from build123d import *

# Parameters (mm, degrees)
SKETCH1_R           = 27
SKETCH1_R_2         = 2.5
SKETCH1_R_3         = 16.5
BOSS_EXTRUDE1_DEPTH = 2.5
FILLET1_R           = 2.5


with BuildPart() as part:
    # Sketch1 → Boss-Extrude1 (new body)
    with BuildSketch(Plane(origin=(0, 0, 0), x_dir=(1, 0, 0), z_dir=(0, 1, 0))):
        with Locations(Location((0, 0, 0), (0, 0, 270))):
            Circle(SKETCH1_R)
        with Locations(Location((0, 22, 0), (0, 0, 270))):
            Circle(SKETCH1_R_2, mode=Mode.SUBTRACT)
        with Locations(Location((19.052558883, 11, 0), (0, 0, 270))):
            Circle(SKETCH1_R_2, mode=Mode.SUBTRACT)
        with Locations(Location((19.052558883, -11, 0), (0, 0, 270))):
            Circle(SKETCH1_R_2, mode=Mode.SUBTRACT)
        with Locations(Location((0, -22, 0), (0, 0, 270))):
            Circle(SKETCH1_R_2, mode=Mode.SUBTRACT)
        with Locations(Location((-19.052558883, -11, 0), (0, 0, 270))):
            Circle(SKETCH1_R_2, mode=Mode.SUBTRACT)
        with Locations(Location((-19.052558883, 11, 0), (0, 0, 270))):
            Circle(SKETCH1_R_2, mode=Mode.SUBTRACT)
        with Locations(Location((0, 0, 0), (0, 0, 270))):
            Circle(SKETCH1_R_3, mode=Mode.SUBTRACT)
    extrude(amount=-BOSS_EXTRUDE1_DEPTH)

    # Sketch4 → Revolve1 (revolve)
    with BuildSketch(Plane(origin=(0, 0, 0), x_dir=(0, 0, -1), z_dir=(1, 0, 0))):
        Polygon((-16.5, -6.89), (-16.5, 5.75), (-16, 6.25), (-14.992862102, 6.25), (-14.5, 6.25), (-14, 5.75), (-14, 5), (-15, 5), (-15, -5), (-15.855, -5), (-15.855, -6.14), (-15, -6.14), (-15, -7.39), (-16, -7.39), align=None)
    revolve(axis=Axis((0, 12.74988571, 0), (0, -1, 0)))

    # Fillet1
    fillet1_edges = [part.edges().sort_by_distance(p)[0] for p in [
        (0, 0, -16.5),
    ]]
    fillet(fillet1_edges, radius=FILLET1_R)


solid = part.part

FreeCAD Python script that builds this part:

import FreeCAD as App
import Part
import Sketcher
from FreeCAD import Vector


def edges_at(feature, points):
    """Names of the edges that pass closest to the given points."""
    edges = feature.Shape.Edges
    near = lambda p: min(range(len(edges)), key=lambda i: edges[i].distToShape(Part.Vertex(*p))[0])
    return sorted({f"Edge{near(p) + 1}" for p in points})


def add_polygon(sketch, points):
    """Adds a closed chain of lines whose ends are joined by coincident constraints."""
    first, n = sketch.GeometryCount, len(points)
    for a, b in zip(points, points[1:] + points[:1]):
        sketch.addGeometry(Part.LineSegment(App.Vector(*a, 0), App.Vector(*b, 0)), False)
    for i in range(n):
        sketch.addConstraint(Sketcher.Constraint("Coincident", first + i, 2, first + (i + 1) % n, 1))

doc = App.newDocument("Part")
body = doc.addObject("PartDesign::Body", "Body")

sketch1 = doc.addObject("Sketcher::SketchObject", "Sketch")
body.addObject(sketch1)
sketch1.AttachmentSupport = (doc.XZ_Plane, [""])
sketch1.MapMode = "FlatFace"
sketch1.addGeometry([
    Part.Circle(Vector(0, 0, 0), Vector(0, 0, 1), 27),
    Part.Circle(Vector(-19.1, -11, 0), Vector(0, 0, 1), 2.5),
    Part.Circle(Vector(0, -22, 0), Vector(0, 0, 1), 2.5),
    Part.Circle(Vector(-19.1, 11, 0), Vector(0, 0, 1), 2.5),
    Part.Circle(Vector(0, 0, 0), Vector(0, 0, 1), 16.5),
    Part.Circle(Vector(19.1, -11, 0), Vector(0, 0, 1), 2.5),
    Part.Circle(Vector(0, 22, 0), Vector(0, 0, 1), 2.5),
    Part.Circle(Vector(19.1, 11, 0), Vector(0, 0, 1), 2.5),
], False)
sketch1.addConstraint([
    Sketcher.Constraint("Coincident", 0, 3, -1, 1),
    Sketcher.Constraint("Coincident", 4, 3, -1, 1),
    Sketcher.Constraint("Equal", 1, 2),
    Sketcher.Constraint("Equal", 2, 3),
    Sketcher.Constraint("Equal", 3, 5),
    Sketcher.Constraint("Equal", 5, 6),
    Sketcher.Constraint("Equal", 6, 7),
    Sketcher.Constraint("Symmetric", 3, 3, 5, 3, -1, 1),
    Sketcher.Constraint("Symmetric", 2, 3, 6, 3, -1, 1),
    Sketcher.Constraint("Symmetric", 1, 3, 7, 3, -1, 1),
    Sketcher.Constraint("Symmetric", 1, 3, 5, 3, -2),
    Sketcher.Constraint("PointOnObject", 2, 3, -2),
    Sketcher.Constraint("Diameter", 0, 54.0),
    Sketcher.Constraint("Diameter", 1, 5.0),
    Sketcher.Constraint("Diameter", 4, 33.0),
    Sketcher.Constraint("DistanceY", 1, 3, -1, 1, 11.0),
    Sketcher.Constraint("DistanceY", 2, 3, -1, 1, 22.0),
    Sketcher.Constraint("DistanceX", 1, 3, -1, 1, 19.052559),
])
pad1 = doc.addObject("PartDesign::Pad", "Pad")
body.addObject(pad1)
pad1.Profile = sketch1
pad1.Length = 2.5

sketch2 = doc.addObject("Sketcher::SketchObject", "Sketch001")
body.addObject(sketch2)
sketch2.AttachmentSupport = (doc.YZ_Plane, [""])
sketch2.MapMode = "FlatFace"
add_polygon(sketch2, [(5.8, 16.5), (-6.9, 16.5), (-7.4, 16), (-7.4, 15), (-6.1, 15), (-6.1, 15.9), (-5, 15.9), (-5, 15), (5, 15), (5, 14), (5.8, 14), (6.2, 14.5), (6.2, 16)])
sketch2.addConstraint([
    Sketcher.Constraint("Horizontal", 0),
    Sketcher.Constraint("Vertical", 2),
    Sketcher.Constraint("Horizontal", 3),
    Sketcher.Constraint("Vertical", 4),
    Sketcher.Constraint("Horizontal", 5),
    Sketcher.Constraint("Vertical", 6),
    Sketcher.Constraint("Horizontal", 7),
    Sketcher.Constraint("Vertical", 8),
    Sketcher.Constraint("Horizontal", 9),
    Sketcher.Constraint("Vertical", 11),
    Sketcher.Constraint("Parallel", 1, 10),
    Sketcher.Constraint("Perpendicular", 10, 12),
    Sketcher.Constraint("Horizontal", 3, 2, 6, 2),
    Sketcher.Constraint("Horizontal", 1, 2, 11, 2),
    Sketcher.Constraint("Vertical", 9, 2, 12, 2),
    Sketcher.Constraint("Equal", 2, 8),
    Sketcher.Constraint("Equal", 1, 10),
    Sketcher.Constraint("DistanceX", 7, 1, 7, 2, 10.0),
    Sketcher.Constraint("DistanceY", 2, 2, 2, 1, 1.0),
    Sketcher.Constraint("DistanceY", 11, 1, 11, 2, 1.5),
    Sketcher.Constraint("DistanceY", -1, 1, 1, 2, 16.0),
    Sketcher.Constraint("DistanceX", 5, 2, -1, 1, 5.0),
    Sketcher.Constraint("DistanceX", 0, 2, 0, 1, 12.64),
    Sketcher.Constraint("DistanceX", 3, 1, 3, 2, 1.25),
    Sketcher.Constraint("DistanceX", 5, 1, 5, 2, 1.14),
    Sketcher.Constraint("DistanceY", 4, 1, 4, 2, 0.855),
])
revolution = doc.addObject("PartDesign::Revolution", "Revolution")
body.addObject(revolution)
revolution.Profile = sketch2
revolution.ReferenceAxis = (sketch2, ["H_Axis"])
revolution.Angle = 360
doc.recompute()

fillet = doc.addObject("PartDesign::Fillet", "Fillet")
body.addObject(fillet)
fillet.Base = (revolution, edges_at(revolution, [(0, 0, -16.5)]))
fillet.Radius = 2.5

doc.recompute()
